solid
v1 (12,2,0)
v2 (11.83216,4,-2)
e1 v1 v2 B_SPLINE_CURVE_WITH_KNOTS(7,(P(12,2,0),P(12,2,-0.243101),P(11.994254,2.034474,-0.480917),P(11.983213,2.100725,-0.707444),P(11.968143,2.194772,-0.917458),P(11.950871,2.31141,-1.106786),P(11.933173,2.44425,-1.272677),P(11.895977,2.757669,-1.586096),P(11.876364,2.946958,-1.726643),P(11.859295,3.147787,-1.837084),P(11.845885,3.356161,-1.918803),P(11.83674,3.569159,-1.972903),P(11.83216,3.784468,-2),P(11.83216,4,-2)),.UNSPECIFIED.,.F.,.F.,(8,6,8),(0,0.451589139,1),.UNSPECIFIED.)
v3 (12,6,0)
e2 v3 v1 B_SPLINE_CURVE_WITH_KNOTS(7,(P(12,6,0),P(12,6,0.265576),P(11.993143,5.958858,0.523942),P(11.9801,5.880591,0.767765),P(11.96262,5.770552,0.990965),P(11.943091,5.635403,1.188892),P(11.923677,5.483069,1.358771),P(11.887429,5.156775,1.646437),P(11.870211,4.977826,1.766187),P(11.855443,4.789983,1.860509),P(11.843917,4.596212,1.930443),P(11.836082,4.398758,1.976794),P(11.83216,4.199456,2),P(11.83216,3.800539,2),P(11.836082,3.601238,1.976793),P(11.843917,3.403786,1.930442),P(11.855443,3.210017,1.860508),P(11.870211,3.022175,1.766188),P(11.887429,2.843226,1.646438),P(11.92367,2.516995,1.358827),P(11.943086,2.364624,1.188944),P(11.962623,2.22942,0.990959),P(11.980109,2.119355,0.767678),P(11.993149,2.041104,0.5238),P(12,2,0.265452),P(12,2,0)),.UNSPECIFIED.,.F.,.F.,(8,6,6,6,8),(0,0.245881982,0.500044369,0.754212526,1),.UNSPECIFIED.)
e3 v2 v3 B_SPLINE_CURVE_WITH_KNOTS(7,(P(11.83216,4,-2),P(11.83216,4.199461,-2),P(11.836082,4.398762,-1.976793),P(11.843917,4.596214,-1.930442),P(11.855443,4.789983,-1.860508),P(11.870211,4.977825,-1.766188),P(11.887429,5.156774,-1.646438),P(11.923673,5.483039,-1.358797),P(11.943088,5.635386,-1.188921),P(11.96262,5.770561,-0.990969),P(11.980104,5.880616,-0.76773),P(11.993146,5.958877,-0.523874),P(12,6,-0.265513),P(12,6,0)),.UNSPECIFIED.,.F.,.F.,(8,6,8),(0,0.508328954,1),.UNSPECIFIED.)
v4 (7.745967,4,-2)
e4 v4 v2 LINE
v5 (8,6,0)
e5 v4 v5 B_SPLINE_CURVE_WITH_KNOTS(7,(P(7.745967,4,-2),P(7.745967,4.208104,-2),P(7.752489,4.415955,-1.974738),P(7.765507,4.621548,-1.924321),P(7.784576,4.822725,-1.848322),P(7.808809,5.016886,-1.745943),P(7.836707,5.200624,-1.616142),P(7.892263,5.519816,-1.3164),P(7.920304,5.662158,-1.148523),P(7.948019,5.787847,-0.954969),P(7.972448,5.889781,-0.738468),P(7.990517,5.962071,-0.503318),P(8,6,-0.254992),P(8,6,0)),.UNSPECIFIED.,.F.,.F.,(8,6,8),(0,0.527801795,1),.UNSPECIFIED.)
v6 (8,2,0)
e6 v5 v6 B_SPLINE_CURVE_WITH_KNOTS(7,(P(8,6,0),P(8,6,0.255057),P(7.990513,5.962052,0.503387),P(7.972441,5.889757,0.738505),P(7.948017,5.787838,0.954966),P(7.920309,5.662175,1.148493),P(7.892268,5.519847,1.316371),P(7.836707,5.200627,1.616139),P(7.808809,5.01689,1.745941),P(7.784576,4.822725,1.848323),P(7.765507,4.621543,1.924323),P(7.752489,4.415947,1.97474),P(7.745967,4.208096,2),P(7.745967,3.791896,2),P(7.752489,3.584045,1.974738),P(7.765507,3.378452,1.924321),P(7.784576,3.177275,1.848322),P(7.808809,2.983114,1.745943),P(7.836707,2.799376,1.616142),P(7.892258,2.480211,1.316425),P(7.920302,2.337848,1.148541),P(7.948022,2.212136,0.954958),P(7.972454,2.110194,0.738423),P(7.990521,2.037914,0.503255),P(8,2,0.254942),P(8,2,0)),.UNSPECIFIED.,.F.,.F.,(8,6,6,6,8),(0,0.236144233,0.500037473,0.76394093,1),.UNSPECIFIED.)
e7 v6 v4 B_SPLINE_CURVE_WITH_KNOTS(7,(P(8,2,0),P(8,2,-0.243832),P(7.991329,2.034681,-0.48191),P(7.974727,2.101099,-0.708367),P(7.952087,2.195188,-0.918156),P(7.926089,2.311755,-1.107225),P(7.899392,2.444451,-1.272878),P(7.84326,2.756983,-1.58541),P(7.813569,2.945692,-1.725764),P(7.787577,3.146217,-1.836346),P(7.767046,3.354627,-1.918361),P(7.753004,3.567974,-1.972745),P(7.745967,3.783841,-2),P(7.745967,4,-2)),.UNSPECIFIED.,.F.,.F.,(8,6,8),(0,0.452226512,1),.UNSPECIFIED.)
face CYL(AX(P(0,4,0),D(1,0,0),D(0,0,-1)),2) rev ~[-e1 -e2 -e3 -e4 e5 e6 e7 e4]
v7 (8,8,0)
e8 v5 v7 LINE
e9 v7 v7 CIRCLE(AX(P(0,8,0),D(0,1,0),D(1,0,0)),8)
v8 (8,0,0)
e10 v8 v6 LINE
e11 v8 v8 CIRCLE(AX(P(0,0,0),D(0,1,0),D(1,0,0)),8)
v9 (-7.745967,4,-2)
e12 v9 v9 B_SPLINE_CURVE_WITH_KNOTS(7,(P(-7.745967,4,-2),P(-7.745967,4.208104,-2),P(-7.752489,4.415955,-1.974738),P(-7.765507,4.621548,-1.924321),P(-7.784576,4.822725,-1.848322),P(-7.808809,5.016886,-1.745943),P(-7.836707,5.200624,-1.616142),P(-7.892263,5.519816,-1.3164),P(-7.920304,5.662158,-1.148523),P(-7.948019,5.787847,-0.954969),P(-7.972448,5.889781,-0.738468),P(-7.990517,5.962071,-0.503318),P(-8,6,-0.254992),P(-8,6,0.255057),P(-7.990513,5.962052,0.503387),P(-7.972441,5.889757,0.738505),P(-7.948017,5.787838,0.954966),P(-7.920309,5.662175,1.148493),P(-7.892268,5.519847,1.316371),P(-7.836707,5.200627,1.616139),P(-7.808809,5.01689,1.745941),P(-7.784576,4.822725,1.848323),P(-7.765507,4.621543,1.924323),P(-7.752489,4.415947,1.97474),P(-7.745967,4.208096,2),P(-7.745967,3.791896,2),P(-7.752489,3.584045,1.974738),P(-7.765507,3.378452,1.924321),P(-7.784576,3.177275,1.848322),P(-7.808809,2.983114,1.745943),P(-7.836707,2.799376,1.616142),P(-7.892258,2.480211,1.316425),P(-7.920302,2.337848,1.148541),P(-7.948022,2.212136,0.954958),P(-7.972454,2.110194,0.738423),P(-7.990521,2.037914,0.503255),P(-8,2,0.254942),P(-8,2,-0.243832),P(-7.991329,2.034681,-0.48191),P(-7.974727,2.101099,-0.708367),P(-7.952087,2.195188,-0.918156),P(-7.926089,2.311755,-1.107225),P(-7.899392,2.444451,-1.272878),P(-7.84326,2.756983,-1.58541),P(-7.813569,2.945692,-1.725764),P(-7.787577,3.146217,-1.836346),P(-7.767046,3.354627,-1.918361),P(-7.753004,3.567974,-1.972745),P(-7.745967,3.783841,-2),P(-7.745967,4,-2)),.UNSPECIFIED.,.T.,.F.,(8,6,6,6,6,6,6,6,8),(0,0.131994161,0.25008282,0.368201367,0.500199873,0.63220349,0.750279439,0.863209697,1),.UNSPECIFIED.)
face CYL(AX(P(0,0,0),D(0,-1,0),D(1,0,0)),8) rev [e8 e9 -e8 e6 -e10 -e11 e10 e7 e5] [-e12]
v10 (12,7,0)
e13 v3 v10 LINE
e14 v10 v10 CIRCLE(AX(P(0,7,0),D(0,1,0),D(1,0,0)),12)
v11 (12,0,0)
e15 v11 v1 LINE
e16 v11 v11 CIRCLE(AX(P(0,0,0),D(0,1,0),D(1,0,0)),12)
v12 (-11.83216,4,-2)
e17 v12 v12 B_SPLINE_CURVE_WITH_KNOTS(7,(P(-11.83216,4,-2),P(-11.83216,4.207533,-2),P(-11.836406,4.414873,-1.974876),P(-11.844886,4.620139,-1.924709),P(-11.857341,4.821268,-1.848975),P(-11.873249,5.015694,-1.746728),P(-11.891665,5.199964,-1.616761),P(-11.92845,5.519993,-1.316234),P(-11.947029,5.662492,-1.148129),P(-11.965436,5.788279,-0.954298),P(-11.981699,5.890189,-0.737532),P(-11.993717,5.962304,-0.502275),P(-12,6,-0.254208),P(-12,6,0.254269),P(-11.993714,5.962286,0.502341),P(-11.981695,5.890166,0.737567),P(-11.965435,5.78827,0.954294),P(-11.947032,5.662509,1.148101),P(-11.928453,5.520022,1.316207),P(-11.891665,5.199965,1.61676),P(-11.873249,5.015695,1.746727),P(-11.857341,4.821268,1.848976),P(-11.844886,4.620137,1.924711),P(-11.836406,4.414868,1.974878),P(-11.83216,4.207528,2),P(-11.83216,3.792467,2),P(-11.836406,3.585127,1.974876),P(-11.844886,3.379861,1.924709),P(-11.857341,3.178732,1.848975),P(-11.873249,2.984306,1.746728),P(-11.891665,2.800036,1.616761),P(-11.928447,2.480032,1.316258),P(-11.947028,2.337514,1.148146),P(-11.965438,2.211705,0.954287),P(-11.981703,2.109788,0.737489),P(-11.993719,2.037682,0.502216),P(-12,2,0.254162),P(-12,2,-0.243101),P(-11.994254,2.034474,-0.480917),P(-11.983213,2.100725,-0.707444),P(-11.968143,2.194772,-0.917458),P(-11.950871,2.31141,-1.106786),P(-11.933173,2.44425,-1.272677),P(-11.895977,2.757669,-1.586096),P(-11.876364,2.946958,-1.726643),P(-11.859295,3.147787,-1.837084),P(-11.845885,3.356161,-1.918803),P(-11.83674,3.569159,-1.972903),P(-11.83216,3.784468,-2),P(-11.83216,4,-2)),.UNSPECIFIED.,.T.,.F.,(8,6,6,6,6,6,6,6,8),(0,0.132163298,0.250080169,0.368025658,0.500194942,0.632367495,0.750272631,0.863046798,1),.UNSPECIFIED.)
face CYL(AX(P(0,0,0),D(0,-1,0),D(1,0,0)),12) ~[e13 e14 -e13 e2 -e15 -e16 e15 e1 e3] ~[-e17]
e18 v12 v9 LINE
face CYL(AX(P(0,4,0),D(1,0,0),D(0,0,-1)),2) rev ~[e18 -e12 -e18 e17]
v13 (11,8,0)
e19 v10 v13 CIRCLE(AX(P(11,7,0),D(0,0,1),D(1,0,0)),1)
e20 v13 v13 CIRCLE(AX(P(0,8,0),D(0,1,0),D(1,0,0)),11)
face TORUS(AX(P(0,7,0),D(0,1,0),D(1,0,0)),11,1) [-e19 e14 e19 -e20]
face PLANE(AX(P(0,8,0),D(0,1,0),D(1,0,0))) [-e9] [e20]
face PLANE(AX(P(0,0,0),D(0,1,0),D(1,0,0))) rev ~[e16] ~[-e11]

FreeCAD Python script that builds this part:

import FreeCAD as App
import Part
import Sketcher

V = App.Vector


def edges_at(feature, points):
    """Names of the edges that pass closest to the given points."""
    edges = feature.Shape.Edges
    near = lambda p: min(range(len(edges)), key=lambda i: edges[i].distToShape(Part.Vertex(*p))[0])
    return sorted({f"Edge{near(p) + 1}" for p in points})

doc = App.newDocument("Part")
body = doc.addObject("PartDesign::Body", "Body")

sketch1 = body.newObject("Sketcher::SketchObject", "Sketch")
sketch1.AttachmentSupport = (doc.getObject("XZ_Plane"), [""])
sketch1.MapMode = "FlatFace"
sketch1.addGeometry([
    Part.Circle(V(0, 0, 0), V(0, 0, 1), 12),
    Part.Circle(V(0, 0, 0), V(0, 0, 1), 8),
], False)
sketch1.addConstraint([
    Sketcher.Constraint("Coincident", 0, 3, -1, 1),
    Sketcher.Constraint("Coincident", 1, 3, -1, 1),
    Sketcher.Constraint("Diameter", 0, 24.0),
    Sketcher.Constraint("Diameter", 1, 16.0),
])
pad1 = body.newObject("PartDesign::Pad", "Pad")
pad1.Profile = sketch1
pad1.Length = 8
pad1.Reversed = True
doc.recompute()

fillet = body.newObject("PartDesign::Fillet", "Fillet")
fillet.Base = (pad1, edges_at(pad1, [(-12, 8, 0)]))
fillet.Radius = 1

sketch2 = body.newObject("Sketcher::SketchObject", "Sketch001")
sketch2.AttachmentSupport = (doc.getObject("YZ_Plane"), [""])
sketch2.MapMode = "FlatFace"
sketch2.addGeometry(Part.Circle(V(4, 0, 0), V(0, 0, 1), 2), False)
sketch2.addConstraint([
    Sketcher.Constraint("PointOnObject", 0, 3, -1),
    Sketcher.Constraint("Diameter", 0, 4.0),
    Sketcher.Constraint("DistanceX", -1, 1, 0, 3, 4.0),
])
pocket1 = body.newObject("PartDesign::Pocket", "Pocket")
pocket1.Profile = sketch2
pocket1.Length = 48
pocket1.Midplane = True

doc.recompute()
